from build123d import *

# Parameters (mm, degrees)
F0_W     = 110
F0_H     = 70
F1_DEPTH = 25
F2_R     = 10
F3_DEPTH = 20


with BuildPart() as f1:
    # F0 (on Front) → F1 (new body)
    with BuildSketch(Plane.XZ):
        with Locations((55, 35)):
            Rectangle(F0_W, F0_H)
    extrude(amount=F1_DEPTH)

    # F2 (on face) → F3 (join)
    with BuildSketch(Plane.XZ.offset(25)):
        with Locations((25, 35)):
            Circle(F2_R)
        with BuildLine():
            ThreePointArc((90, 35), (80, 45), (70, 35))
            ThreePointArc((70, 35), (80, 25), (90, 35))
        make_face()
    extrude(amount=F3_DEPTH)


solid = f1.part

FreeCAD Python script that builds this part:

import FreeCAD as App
import Part
import Sketcher
from FreeCAD import Vector
Q = App.Units.Quantity

doc = App.newDocument("Part")
body = doc.addObject("PartDesign::Body", "Body")

sketch1 = body.newObject("Sketcher::SketchObject", "Sketch")
sketch1.AttachmentSupport = (doc.getObject("XZ_Plane"), [""])
sketch1.MapMode = "FlatFace"
sketch1.addGeometry([
    Part.LineSegment(Vector(0, 70, 0), Vector(0, 0, 0)),
    Part.LineSegment(Vector(0, 0, 0), Vector(110, 0, 0)),
    Part.LineSegment(Vector(110, 0, 0), Vector(110, 70, 0)),
    Part.LineSegment(Vector(110, 70, 0), Vector(0, 70, 0)),
], False)
sketch1.addConstraint([
    Sketcher.Constraint("Coincident", 0, 2, 1, 1),
    Sketcher.Constraint("Coincident", 1, 2, 2, 1),
    Sketcher.Constraint("Coincident", 2, 2, 3, 1),
    Sketcher.Constraint("Coincident", 3, 2, 0, 1),
    Sketcher.Constraint("Vertical", 0),
    Sketcher.Constraint("Horizontal", 1),
    Sketcher.Constraint("Vertical", 2),
    Sketcher.Constraint("Horizontal", 3),
    Sketcher.Constraint("Coincident", 0, 2, -1, 1),
    Sketcher.Constraint("DistanceX", 1, 1, 1, 2, Q("110 mm")),
    Sketcher.Constraint("DistanceY", 0, 2, 0, 1, Q("70 mm")),
])
pad1 = body.newObject("PartDesign::Pad", "Pad")
pad1.Profile = sketch1
pad1.Length = 25

sketch2 = body.newObject("Sketcher::SketchObject", "Sketch001")
sketch2.AttachmentSupport = (doc.getObject("XZ_Plane"), [""])
sketch2.MapMode = "FlatFace"
sketch2.AttachmentOffset = App.Placement(Vector(0, 0, 25), App.Rotation())
sketch2.addGeometry([
    Part.Circle(Vector(25, 35, 0), Vector(0, 0, 1), 10),
    Part.Circle(Vector(80, 35, 0), Vector(0, 0, 1), 10),
], False)
sketch2.addConstraint([
    Sketcher.Constraint("Equal", 0, 1),
    Sketcher.Constraint("Horizontal", 0, 3, 1, 3),
    Sketcher.Constraint("Diameter", 0, Q("20 mm")),
    Sketcher.Constraint("DistanceX", -1, 1, 0, 3, Q("25 mm")),
    Sketcher.Constraint("DistanceY", -1, 1, 0, 3, Q("35 mm")),
    Sketcher.Constraint("DistanceX", -1, 1, 1, 3, Q("80 mm")),
])
pad2 = body.newObject("PartDesign::Pad", "Pad001")
pad2.Profile = sketch2
pad2.Length = 20

doc.recompute()
